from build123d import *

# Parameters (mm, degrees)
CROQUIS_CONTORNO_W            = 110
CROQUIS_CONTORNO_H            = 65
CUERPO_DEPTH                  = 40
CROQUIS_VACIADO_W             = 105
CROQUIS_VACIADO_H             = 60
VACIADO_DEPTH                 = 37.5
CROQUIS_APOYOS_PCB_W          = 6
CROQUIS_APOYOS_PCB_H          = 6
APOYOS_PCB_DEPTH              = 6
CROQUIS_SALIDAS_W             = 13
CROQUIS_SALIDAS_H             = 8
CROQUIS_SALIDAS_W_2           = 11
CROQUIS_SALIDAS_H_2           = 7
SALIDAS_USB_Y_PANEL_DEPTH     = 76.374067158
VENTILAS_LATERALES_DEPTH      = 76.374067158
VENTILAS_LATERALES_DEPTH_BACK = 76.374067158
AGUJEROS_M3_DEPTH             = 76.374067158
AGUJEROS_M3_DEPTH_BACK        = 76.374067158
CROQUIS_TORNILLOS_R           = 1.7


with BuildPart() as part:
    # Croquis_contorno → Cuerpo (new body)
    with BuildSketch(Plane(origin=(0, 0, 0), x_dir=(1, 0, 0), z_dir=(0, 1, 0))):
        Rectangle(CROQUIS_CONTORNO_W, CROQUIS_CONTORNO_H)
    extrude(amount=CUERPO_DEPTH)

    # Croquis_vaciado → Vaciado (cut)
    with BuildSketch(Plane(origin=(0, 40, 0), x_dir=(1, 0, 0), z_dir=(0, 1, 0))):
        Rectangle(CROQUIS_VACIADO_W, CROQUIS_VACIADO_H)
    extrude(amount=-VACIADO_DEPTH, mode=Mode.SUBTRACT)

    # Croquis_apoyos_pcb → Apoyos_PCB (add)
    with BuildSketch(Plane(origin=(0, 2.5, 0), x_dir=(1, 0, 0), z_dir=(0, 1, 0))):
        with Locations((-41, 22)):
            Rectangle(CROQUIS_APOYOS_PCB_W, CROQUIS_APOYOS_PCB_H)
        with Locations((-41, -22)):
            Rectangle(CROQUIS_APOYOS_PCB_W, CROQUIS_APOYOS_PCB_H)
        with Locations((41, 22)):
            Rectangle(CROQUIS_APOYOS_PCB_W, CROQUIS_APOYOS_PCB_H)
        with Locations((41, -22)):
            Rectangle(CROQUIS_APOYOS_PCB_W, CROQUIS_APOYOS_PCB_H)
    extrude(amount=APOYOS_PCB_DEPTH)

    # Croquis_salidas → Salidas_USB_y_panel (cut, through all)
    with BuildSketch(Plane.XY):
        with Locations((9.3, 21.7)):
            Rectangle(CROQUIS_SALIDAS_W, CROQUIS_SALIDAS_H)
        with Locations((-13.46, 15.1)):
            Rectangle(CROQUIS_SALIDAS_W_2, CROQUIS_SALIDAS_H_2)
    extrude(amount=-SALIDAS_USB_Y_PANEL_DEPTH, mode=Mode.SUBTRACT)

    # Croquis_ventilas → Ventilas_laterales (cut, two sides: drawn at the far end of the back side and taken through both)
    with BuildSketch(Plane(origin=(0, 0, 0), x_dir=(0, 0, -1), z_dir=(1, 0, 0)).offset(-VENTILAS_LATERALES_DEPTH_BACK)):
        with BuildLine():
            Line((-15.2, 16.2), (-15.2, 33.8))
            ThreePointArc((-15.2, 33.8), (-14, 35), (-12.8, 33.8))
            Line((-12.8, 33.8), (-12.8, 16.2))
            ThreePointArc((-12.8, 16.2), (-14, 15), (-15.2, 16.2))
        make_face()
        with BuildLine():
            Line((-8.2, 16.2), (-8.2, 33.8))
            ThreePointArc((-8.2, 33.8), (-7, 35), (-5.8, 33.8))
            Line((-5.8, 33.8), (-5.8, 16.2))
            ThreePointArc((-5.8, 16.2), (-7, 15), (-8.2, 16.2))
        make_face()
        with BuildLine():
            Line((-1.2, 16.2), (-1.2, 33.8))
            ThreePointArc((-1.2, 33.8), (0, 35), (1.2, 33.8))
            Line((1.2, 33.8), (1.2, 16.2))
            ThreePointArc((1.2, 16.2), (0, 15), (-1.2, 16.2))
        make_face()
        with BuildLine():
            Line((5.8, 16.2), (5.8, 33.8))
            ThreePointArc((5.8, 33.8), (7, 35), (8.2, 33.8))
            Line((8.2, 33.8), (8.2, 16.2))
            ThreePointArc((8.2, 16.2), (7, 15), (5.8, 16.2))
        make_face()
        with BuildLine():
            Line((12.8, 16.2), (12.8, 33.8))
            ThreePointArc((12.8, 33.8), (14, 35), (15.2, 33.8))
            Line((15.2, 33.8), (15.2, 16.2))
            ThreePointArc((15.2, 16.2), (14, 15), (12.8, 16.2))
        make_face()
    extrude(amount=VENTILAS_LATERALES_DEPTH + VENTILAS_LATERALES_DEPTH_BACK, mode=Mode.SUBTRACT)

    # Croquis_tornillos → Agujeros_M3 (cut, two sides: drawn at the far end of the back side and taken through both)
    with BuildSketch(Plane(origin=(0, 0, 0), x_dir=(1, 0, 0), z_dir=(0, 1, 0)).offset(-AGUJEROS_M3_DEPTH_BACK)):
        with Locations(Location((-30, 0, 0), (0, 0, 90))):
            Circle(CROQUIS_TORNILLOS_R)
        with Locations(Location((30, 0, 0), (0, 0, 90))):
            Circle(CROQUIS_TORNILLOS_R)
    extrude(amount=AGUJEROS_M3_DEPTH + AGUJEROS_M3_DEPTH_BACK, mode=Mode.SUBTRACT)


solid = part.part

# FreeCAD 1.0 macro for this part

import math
import FreeCAD as App
import Part
import Sketcher
Q = App.Units.Quantity

doc = App.newDocument("Part")
body = doc.addObject("PartDesign::Body", "Body")

# Sketch on XZ plane
sketch1 = body.newObject("Sketcher::SketchObject", "Sketch")
sketch1.AttachmentSupport = (doc.getObject("XZ_Plane"), [""])
sketch1.MapMode = "FlatFace"
sketch1.addGeometry([
    Part.LineSegment(App.Vector(-55, -32, 0), App.Vector(-55, 32, 0)),
    Part.LineSegment(App.Vector(-55, 32, 0), App.Vector(55, 32, 0)),
    Part.LineSegment(App.Vector(55, 32, 0), App.Vector(55, -32, 0)),
    Part.LineSegment(App.Vector(55, -32, 0), App.Vector(-55, -32, 0)),
], False)
sketch1.addConstraint([
    Sketcher.Constraint("Coincident", 0, 2, 1, 1),
    Sketcher.Constraint("Coincident", 1, 2, 2, 1),
    Sketcher.Constraint("Coincident", 2, 2, 3, 1),
    Sketcher.Constraint("Coincident", 3, 2, 0, 1),
    Sketcher.Constraint("Vertical", 0),
    Sketcher.Constraint("Horizontal", 1),
    Sketcher.Constraint("Vertical", 2),
    Sketcher.Constraint("Horizontal", 3),
    Sketcher.Constraint("Symmetric", 0, 2, 2, 2, -1, 1),
    Sketcher.Constraint("DistanceX", 1, 1, 1, 2, Q("110 mm")),
    Sketcher.Constraint("DistanceY", 0, 1, 0, 2, Q("65 mm")),
])
pad1 = body.newObject("PartDesign::Pad", "Pad")
pad1.Profile = sketch1
pad1.Length = 40
pad1.Reversed = True

# Sketch on XZ plane
sketch2 = body.newObject("Sketcher::SketchObject", "Sketch001")
sketch2.AttachmentSupport = (doc.getObject("XZ_Plane"), [""])
sketch2.MapMode = "FlatFace"
sketch2.AttachmentOffset = App.Placement(App.Vector(0, 0, -40), App.Rotation())
sketch2.addGeometry([
    Part.LineSegment(App.Vector(-52, -30, 0), App.Vector(-52, 30, 0)),
    Part.LineSegment(App.Vector(-52, 30, 0), App.Vector(52, 30, 0)),
    Part.LineSegment(App.Vector(52, 30, 0), App.Vector(52, -30, 0)),
    Part.LineSegment(App.Vector(52, -30, 0), App.Vector(-52, -30, 0)),
], False)
sketch2.addConstraint([
    Sketcher.Constraint("Coincident", 0, 2, 1, 1),
    Sketcher.Constraint("Coincident", 1, 2, 2, 1),
    Sketcher.Constraint("Coincident", 2, 2, 3, 1),
    Sketcher.Constraint("Coincident", 3, 2, 0, 1),
    Sketcher.Constraint("Vertical", 0),
    Sketcher.Constraint("Horizontal", 1),
    Sketcher.Constraint("Vertical", 2),
    Sketcher.Constraint("Horizontal", 3),
    Sketcher.Constraint("Symmetric", 0, 2, 2, 2, -1, 1),
    Sketcher.Constraint("DistanceX", 1, 1, 1, 2, Q("105 mm")),
    Sketcher.Constraint("DistanceY", 0, 1, 0, 2, Q("60 mm")),
])
pocket1 = body.newObject("PartDesign::Pocket", "Pocket")
pocket1.Profile = sketch2
pocket1.Length = 37.5
pocket1.Reversed = True

# Sketch on XZ plane
sketch3 = body.newObject("Sketcher::SketchObject", "Sketch002")
sketch3.AttachmentSupport = (doc.getObject("XZ_Plane"), [""])
sketch3.MapMode = "FlatFace"
sketch3.AttachmentOffset = App.Placement(App.Vector(0, 0, -2.5), App.Rotation())
sketch3.addGeometry([
    Part.LineSegment(App.Vector(-44, -25, 0), App.Vector(-44, -19, 0)),  # 0
    Part.LineSegment(App.Vector(-44, -19, 0), App.Vector(-38, -19, 0)),  # 1
    Part.LineSegment(App.Vector(-38, -19, 0), App.Vector(-38, -25, 0)),  # 2
    Part.LineSegment(App.Vector(-38, -25, 0), App.Vector(-44, -25, 0)),  # 3
    Part.LineSegment(App.Vector(-44, 19, 0), App.Vector(-44, 25, 0)),  # 4
    Part.LineSegment(App.Vector(-44, 25, 0), App.Vector(-38, 25, 0)),  # 5
    Part.LineSegment(App.Vector(-38, 25, 0), App.Vector(-38, 19, 0)),  # 6
    Part.LineSegment(App.Vector(-38, 19, 0), App.Vector(-44, 19, 0)),  # 7
    Part.LineSegment(App.Vector(38, -25, 0), App.Vector(38, -19, 0)),  # 8
    Part.LineSegment(App.Vector(38, -19, 0), App.Vector(44, -19, 0)),  # 9
    Part.LineSegment(App.Vector(44, -19, 0), App.Vector(44, -25, 0)),  # 10
    Part.LineSegment(App.Vector(44, -25, 0), App.Vector(38, -25, 0)),  # 11
    Part.LineSegment(App.Vector(38, 19, 0), App.Vector(38, 25, 0)),  # 12
    Part.LineSegment(App.Vector(38, 25, 0), App.Vector(44, 25, 0)),  # 13
    Part.LineSegment(App.Vector(44, 25, 0), App.Vector(44, 19, 0)),  # 14
    Part.LineSegment(App.Vector(44, 19, 0), App.Vector(38, 19, 0)),  # 15
], False)
sketch3.addConstraint([
    Sketcher.Constraint("Coincident", 0, 2, 1, 1),
    Sketcher.Constraint("Coincident", 1, 2, 2, 1),
    Sketcher.Constraint("Coincident", 2, 2, 3, 1),
    Sketcher.Constraint("Coincident", 3, 2, 0, 1),
    Sketcher.Constraint("Coincident", 4, 2, 5, 1),
    Sketcher.Constraint("Coincident", 5, 2, 6, 1),
    Sketcher.Constraint("Coincident", 6, 2, 7, 1),
    Sketcher.Constraint("Coincident", 7, 2, 4, 1),
    Sketcher.Constraint("Coincident", 8, 2, 9, 1),
    Sketcher.Constraint("Coincident", 9, 2, 10, 1),
    Sketcher.Constraint("Coincident", 10, 2, 11, 1),
    Sketcher.Constraint("Coincident", 11, 2, 8, 1),
    Sketcher.Constraint("Coincident", 12, 2, 13, 1),
    Sketcher.Constraint("Coincident", 13, 2, 14, 1),
    Sketcher.Constraint("Coincident", 14, 2, 15, 1),
    Sketcher.Constraint("Coincident", 15, 2, 12, 1),
    Sketcher.Constraint("Vertical", 0),
    Sketcher.Constraint("Horizontal", 1),
    Sketcher.Constraint("Vertical", 2),
    Sketcher.Constraint("Horizontal", 3),
    Sketcher.Constraint("Vertical", 4),
    Sketcher.Constraint("Horizontal", 5),
    Sketcher.Constraint("Vertical", 6),
    Sketcher.Constraint("Horizontal", 7),
    Sketcher.Constraint("Vertical", 8),
    Sketcher.Constraint("Horizontal", 9),
    Sketcher.Constraint("Vertical", 10),
    Sketcher.Constraint("Horizontal", 11),
    Sketcher.Constraint("Vertical", 12),
    Sketcher.Constraint("Horizontal", 13),
    Sketcher.Constraint("Vertical", 14),
    Sketcher.Constraint("Horizontal", 15),
    Sketcher.Constraint("Symmetric", 6, 2, 8, 2, -1, 1),
    Sketcher.Constraint("Symmetric", 4, 2, 10, 2, -1, 1),
    Sketcher.Constraint("Symmetric", 2, 2, 12, 2, -1, 1),
    Sketcher.Constraint("Symmetric", 0, 2, 14, 2, -1, 1),
    Sketcher.Constraint("Symmetric", 1, 2, 8, 2, -2),
    Sketcher.Constraint("Symmetric", 3, 2, 10, 2, -2),
    Sketcher.Constraint("Equal", 15, 0),
    Sketcher.Constraint("DistanceX", 1, 1, 1, 2, Q("6 mm")),
    Sketcher.Constraint("DistanceX", 0, 2, -1, 1, Q("44 mm")),
    Sketcher.Constraint("DistanceY", 0, 2, -1, 1, Q("19 mm")),
])
pad2 = body.newObject("PartDesign::Pad", "Pad001")
pad2.Profile = sketch3
pad2.Length = 6
pad2.Reversed = True

# Sketch on XY plane
sketch4 = body.newObject("Sketcher::SketchObject", "Sketch003")
sketch4.AttachmentSupport = (doc.getObject("XY_Plane"), [""])
sketch4.MapMode = "FlatFace"
sketch4.addGeometry([
    Part.LineSegment(App.Vector(3, 26, 0), App.Vector(3, 18, 0)),  # 0
    Part.LineSegment(App.Vector(3, 18, 0), App.Vector(16, 18, 0)),  # 1
    Part.LineSegment(App.Vector(16, 18, 0), App.Vector(16, 26, 0)),  # 2
    Part.LineSegment(App.Vector(16, 26, 0), App.Vector(3, 26, 0)),  # 3
    Part.LineSegment(App.Vector(-19, 19, 0), App.Vector(-19, 12, 0)),  # 4
    Part.LineSegment(App.Vector(-19, 12, 0), App.Vector(-8, 12, 0)),  # 5
    Part.LineSegment(App.Vector(-8, 12, 0), App.Vector(-8, 19, 0)),  # 6
    Part.LineSegment(App.Vector(-8, 19, 0), App.Vector(-19, 19, 0)),  # 7
], False)
sketch4.addConstraint([
    Sketcher.Constraint("Coincident", 0, 2, 1, 1),
    Sketcher.Constraint("Coincident", 1, 2, 2, 1),
    Sketcher.Constraint("Coincident", 2, 2, 3, 1),
    Sketcher.Constraint("Coincident", 3, 2, 0, 1),
    Sketcher.Constraint("Coincident", 4, 2, 5, 1),
    Sketcher.Constraint("Coincident", 5, 2, 6, 1),
    Sketcher.Constraint("Coincident", 6, 2, 7, 1),
    Sketcher.Constraint("Coincident", 7, 2, 4, 1),
    Sketcher.Constraint("Vertical", 0),
    Sketcher.Constraint("Horizontal", 1),
    Sketcher.Constraint("Vertical", 2),
    Sketcher.Constraint("Horizontal", 3),
    Sketcher.Constraint("Vertical", 4),
    Sketcher.Constraint("Horizontal", 5),
    Sketcher.Constraint("Vertical", 6),
    Sketcher.Constraint("Horizontal", 7),
    Sketcher.Constraint("DistanceX", 1, 1, 1, 2, Q("13 mm")),
    Sketcher.Constraint("DistanceX", 5, 1, 5, 2, Q("11 mm")),
    Sketcher.Constraint("DistanceY", 0, 2, 0, 1, Q("8 mm")),
    Sketcher.Constraint("DistanceY", 4, 2, 4, 1, Q("7 mm")),
    Sketcher.Constraint("DistanceX", -1, 1, 0, 2, Q("2.8 mm")),
    Sketcher.Constraint("DistanceY", -1, 1, 0, 2, Q("17.7 mm")),
    Sketcher.Constraint("DistanceY", -1, 1, 4, 2, Q("11.6 mm")),
    Sketcher.Constraint("DistanceX", 4, 2, -1, 1, Q("18.96 mm")),
])
pocket2 = body.newObject("PartDesign::Pocket", "Pocket001")
pocket2.Profile = sketch4
pocket2.Type = "ThroughAll"

# Sketch on YZ plane
sketch5 = body.newObject("Sketcher::SketchObject", "Sketch004")
sketch5.AttachmentSupport = (doc.getObject("YZ_Plane"), [""])
sketch5.MapMode = "FlatFace"
sketch5.addGeometry([
    Part.LineSegment(App.Vector(33.8, 15.2, 0), App.Vector(16.2, 15.2, 0)),  # 0
    Part.ArcOfCircle(Part.Circle(App.Vector(16.2, 14, 0), App.Vector(0, 0, 1), 1.2), math.radians(90), math.radians(270)),  # 1
    Part.LineSegment(App.Vector(16.2, 12.8, 0), App.Vector(33.8, 12.8, 0)),  # 2
    Part.ArcOfCircle(Part.Circle(App.Vector(33.8, 14, 0), App.Vector(0, 0, 1), 1.2), math.radians(-90), math.radians(90)),  # 3
    Part.LineSegment(App.Vector(33.8, 8.2, 0), App.Vector(16.2, 8.2, 0)),  # 4
    Part.ArcOfCircle(Part.Circle(App.Vector(16.2, 7, 0), App.Vector(0, 0, 1), 1.2), math.radians(90), math.radians(270)),  # 5
    Part.LineSegment(App.Vector(16.2, 5.8, 0), App.Vector(33.8, 5.8, 0)),  # 6
    Part.ArcOfCircle(Part.Circle(App.Vector(33.8, 7, 0), App.Vector(0, 0, 1), 1.2), math.radians(-90), math.radians(90)),  # 7
    Part.LineSegment(App.Vector(33.8, 1.2, 0), App.Vector(16.2, 1.2, 0)),  # 8
    Part.ArcOfCircle(Part.Circle(App.Vector(16.2, 0, 0), App.Vector(0, 0, 1), 1.2), math.radians(90), math.radians(270)),  # 9
    Part.LineSegment(App.Vector(16.2, -1.2, 0), App.Vector(33.8, -1.2, 0)),  # 10
    Part.ArcOfCircle(Part.Circle(App.Vector(33.8, 0, 0), App.Vector(0, 0, 1), 1.2), math.radians(-90), math.radians(90)),  # 11
    Part.LineSegment(App.Vector(33.8, -5.8, 0), App.Vector(16.2, -5.8, 0)),  # 12
    Part.ArcOfCircle(Part.Circle(App.Vector(16.2, -7, 0), App.Vector(0, 0, 1), 1.2), math.radians(90), math.radians(270)),  # 13
    Part.LineSegment(App.Vector(16.2, -8.2, 0), App.Vector(33.8, -8.2, 0)),  # 14
    Part.ArcOfCircle(Part.Circle(App.Vector(33.8, -7, 0), App.Vector(0, 0, 1), 1.2), math.radians(-90), math.radians(90)),  # 15
    Part.LineSegment(App.Vector(33.8, -12.8, 0), App.Vector(16.2, -12.8, 0)),  # 16
    Part.ArcOfCircle(Part.Circle(App.Vector(16.2, -14, 0), App.Vector(0, 0, 1), 1.2), math.radians(90), math.radians(270)),  # 17
    Part.LineSegment(App.Vector(16.2, -15.2, 0), App.Vector(33.8, -15.2, 0)),  # 18
    Part.ArcOfCircle(Part.Circle(App.Vector(33.8, -14, 0), App.Vector(0, 0, 1), 1.2), math.radians(-90), math.radians(90)),  # 19
], False)
sketch5.addConstraint([
    Sketcher.Constraint("Tangent", 0, 2, 1, 1),
    Sketcher.Constraint("Tangent", 1, 2, 2, 1),
    Sketcher.Constraint("Tangent", 2, 2, 3, 1),
    Sketcher.Constraint("Tangent", 3, 2, 0, 1),
    Sketcher.Constraint("Tangent", 4, 2, 5, 1),
    Sketcher.Constraint("Tangent", 5, 2, 6, 1),
    Sketcher.Constraint("Tangent", 6, 2, 7, 1),
    Sketcher.Constraint("Tangent", 7, 2, 4, 1),
    Sketcher.Constraint("Tangent", 8, 2, 9, 1),
    Sketcher.Constraint("Tangent", 9, 2, 10, 1),
    Sketcher.Constraint("Tangent", 10, 2, 11, 1),
    Sketcher.Constraint("Tangent", 11, 2, 8, 1),
    Sketcher.Constraint("Tangent", 12, 2, 13, 1),
    Sketcher.Constraint("Tangent", 13, 2, 14, 1),
    Sketcher.Constraint("Tangent", 14, 2, 15, 1),
    Sketcher.Constraint("Tangent", 15, 2, 12, 1),
    Sketcher.Constraint("Tangent", 16, 2, 17, 1),
    Sketcher.Constraint("Tangent", 17, 2, 18, 1),
    Sketcher.Constraint("Tangent", 18, 2, 19, 1),
    Sketcher.Constraint("Tangent", 19, 2, 16, 1),
    Sketcher.Constraint("Horizontal", 0),
    Sketcher.Constraint("Horizontal", 2),
    Sketcher.Constraint("Horizontal", 4),
    Sketcher.Constraint("Horizontal", 6),
    Sketcher.Constraint("Horizontal", 8),
    Sketcher.Constraint("Horizontal", 10),
    Sketcher.Constraint("Horizontal", 12),
    Sketcher.Constraint("Horizontal", 14),
    Sketcher.Constraint("Horizontal", 16),
    Sketcher.Constraint("Horizontal", 18),
    Sketcher.Constraint("Equal", 3, 5),
    Sketcher.Constraint("Equal", 7, 9),
    Sketcher.Constraint("Equal", 11, 13),
    Sketcher.Constraint("Equal", 15, 17),
    Sketcher.Constraint("Symmetric", 5, 3, 13, 3, -1),
    Sketcher.Constraint("Symmetric", 1, 3, 17, 3, -1),
    Sketcher.Constraint("PointOnObject", 9, 3, -1),
    Sketcher.Constraint("Vertical", 1, 3, 5, 3),
    Sketcher.Constraint("Vertical", 3, 3, 7, 3),
    Sketcher.Constraint("Vertical", 5, 3, 9, 3),
    Sketcher.Constraint("Vertical", 7, 3, 11, 3),
    Sketcher.Constraint("Vertical", 11, 3, 15, 3),
    Sketcher.Constraint("Vertical", 15, 3, 19, 3),
    Sketcher.Constraint("Radius", 1, Q("1.2 mm")),
    Sketcher.Constraint("DistanceX", 0, 2, 0, 1, Q("17.6 mm")),
    Sketcher.Constraint("DistanceY", -1, 1, 1, 3, Q("14 mm")),
    Sketcher.Constraint("DistanceY", -1, 1, 5, 3, Q("7 mm")),
    Sketcher.Constraint("DistanceX", -1, 1, 1, 3, Q("16.2 mm")),
])
pocket3 = body.newObject("PartDesign::Pocket", "Pocket002")
pocket3.Profile = sketch5
pocket3.Type = "ThroughAll"
pocket3.Midplane = True

# Sketch on XZ plane
sketch6 = body.newObject("Sketcher::SketchObject", "Sketch005")
sketch6.AttachmentSupport = (doc.getObject("XZ_Plane"), [""])
sketch6.MapMode = "FlatFace"
sketch6.addGeometry([
    Part.Circle(App.Vector(-30, 0, 0), App.Vector(0, 0, 1), 1.7),
    Part.Circle(App.Vector(30, 0, 0), App.Vector(0, 0, 1), 1.7),
], False)
sketch6.addConstraint([
    Sketcher.Constraint("Equal", 0, 1),
    Sketcher.Constraint("Symmetric", 0, 3, 1, 3, -1, 1),
    Sketcher.Constraint("PointOnObject", 0, 3, -1),
    Sketcher.Constraint("Diameter", 0, Q("3.4 mm")),
    Sketcher.Constraint("DistanceX", 0, 3, -1, 1, Q("30 mm")),
])
pocket4 = body.newObject("PartDesign::Pocket", "Pocket003")
pocket4.Profile = sketch6
pocket4.Type = "ThroughAll"
pocket4.Midplane = True

doc.recompute()
